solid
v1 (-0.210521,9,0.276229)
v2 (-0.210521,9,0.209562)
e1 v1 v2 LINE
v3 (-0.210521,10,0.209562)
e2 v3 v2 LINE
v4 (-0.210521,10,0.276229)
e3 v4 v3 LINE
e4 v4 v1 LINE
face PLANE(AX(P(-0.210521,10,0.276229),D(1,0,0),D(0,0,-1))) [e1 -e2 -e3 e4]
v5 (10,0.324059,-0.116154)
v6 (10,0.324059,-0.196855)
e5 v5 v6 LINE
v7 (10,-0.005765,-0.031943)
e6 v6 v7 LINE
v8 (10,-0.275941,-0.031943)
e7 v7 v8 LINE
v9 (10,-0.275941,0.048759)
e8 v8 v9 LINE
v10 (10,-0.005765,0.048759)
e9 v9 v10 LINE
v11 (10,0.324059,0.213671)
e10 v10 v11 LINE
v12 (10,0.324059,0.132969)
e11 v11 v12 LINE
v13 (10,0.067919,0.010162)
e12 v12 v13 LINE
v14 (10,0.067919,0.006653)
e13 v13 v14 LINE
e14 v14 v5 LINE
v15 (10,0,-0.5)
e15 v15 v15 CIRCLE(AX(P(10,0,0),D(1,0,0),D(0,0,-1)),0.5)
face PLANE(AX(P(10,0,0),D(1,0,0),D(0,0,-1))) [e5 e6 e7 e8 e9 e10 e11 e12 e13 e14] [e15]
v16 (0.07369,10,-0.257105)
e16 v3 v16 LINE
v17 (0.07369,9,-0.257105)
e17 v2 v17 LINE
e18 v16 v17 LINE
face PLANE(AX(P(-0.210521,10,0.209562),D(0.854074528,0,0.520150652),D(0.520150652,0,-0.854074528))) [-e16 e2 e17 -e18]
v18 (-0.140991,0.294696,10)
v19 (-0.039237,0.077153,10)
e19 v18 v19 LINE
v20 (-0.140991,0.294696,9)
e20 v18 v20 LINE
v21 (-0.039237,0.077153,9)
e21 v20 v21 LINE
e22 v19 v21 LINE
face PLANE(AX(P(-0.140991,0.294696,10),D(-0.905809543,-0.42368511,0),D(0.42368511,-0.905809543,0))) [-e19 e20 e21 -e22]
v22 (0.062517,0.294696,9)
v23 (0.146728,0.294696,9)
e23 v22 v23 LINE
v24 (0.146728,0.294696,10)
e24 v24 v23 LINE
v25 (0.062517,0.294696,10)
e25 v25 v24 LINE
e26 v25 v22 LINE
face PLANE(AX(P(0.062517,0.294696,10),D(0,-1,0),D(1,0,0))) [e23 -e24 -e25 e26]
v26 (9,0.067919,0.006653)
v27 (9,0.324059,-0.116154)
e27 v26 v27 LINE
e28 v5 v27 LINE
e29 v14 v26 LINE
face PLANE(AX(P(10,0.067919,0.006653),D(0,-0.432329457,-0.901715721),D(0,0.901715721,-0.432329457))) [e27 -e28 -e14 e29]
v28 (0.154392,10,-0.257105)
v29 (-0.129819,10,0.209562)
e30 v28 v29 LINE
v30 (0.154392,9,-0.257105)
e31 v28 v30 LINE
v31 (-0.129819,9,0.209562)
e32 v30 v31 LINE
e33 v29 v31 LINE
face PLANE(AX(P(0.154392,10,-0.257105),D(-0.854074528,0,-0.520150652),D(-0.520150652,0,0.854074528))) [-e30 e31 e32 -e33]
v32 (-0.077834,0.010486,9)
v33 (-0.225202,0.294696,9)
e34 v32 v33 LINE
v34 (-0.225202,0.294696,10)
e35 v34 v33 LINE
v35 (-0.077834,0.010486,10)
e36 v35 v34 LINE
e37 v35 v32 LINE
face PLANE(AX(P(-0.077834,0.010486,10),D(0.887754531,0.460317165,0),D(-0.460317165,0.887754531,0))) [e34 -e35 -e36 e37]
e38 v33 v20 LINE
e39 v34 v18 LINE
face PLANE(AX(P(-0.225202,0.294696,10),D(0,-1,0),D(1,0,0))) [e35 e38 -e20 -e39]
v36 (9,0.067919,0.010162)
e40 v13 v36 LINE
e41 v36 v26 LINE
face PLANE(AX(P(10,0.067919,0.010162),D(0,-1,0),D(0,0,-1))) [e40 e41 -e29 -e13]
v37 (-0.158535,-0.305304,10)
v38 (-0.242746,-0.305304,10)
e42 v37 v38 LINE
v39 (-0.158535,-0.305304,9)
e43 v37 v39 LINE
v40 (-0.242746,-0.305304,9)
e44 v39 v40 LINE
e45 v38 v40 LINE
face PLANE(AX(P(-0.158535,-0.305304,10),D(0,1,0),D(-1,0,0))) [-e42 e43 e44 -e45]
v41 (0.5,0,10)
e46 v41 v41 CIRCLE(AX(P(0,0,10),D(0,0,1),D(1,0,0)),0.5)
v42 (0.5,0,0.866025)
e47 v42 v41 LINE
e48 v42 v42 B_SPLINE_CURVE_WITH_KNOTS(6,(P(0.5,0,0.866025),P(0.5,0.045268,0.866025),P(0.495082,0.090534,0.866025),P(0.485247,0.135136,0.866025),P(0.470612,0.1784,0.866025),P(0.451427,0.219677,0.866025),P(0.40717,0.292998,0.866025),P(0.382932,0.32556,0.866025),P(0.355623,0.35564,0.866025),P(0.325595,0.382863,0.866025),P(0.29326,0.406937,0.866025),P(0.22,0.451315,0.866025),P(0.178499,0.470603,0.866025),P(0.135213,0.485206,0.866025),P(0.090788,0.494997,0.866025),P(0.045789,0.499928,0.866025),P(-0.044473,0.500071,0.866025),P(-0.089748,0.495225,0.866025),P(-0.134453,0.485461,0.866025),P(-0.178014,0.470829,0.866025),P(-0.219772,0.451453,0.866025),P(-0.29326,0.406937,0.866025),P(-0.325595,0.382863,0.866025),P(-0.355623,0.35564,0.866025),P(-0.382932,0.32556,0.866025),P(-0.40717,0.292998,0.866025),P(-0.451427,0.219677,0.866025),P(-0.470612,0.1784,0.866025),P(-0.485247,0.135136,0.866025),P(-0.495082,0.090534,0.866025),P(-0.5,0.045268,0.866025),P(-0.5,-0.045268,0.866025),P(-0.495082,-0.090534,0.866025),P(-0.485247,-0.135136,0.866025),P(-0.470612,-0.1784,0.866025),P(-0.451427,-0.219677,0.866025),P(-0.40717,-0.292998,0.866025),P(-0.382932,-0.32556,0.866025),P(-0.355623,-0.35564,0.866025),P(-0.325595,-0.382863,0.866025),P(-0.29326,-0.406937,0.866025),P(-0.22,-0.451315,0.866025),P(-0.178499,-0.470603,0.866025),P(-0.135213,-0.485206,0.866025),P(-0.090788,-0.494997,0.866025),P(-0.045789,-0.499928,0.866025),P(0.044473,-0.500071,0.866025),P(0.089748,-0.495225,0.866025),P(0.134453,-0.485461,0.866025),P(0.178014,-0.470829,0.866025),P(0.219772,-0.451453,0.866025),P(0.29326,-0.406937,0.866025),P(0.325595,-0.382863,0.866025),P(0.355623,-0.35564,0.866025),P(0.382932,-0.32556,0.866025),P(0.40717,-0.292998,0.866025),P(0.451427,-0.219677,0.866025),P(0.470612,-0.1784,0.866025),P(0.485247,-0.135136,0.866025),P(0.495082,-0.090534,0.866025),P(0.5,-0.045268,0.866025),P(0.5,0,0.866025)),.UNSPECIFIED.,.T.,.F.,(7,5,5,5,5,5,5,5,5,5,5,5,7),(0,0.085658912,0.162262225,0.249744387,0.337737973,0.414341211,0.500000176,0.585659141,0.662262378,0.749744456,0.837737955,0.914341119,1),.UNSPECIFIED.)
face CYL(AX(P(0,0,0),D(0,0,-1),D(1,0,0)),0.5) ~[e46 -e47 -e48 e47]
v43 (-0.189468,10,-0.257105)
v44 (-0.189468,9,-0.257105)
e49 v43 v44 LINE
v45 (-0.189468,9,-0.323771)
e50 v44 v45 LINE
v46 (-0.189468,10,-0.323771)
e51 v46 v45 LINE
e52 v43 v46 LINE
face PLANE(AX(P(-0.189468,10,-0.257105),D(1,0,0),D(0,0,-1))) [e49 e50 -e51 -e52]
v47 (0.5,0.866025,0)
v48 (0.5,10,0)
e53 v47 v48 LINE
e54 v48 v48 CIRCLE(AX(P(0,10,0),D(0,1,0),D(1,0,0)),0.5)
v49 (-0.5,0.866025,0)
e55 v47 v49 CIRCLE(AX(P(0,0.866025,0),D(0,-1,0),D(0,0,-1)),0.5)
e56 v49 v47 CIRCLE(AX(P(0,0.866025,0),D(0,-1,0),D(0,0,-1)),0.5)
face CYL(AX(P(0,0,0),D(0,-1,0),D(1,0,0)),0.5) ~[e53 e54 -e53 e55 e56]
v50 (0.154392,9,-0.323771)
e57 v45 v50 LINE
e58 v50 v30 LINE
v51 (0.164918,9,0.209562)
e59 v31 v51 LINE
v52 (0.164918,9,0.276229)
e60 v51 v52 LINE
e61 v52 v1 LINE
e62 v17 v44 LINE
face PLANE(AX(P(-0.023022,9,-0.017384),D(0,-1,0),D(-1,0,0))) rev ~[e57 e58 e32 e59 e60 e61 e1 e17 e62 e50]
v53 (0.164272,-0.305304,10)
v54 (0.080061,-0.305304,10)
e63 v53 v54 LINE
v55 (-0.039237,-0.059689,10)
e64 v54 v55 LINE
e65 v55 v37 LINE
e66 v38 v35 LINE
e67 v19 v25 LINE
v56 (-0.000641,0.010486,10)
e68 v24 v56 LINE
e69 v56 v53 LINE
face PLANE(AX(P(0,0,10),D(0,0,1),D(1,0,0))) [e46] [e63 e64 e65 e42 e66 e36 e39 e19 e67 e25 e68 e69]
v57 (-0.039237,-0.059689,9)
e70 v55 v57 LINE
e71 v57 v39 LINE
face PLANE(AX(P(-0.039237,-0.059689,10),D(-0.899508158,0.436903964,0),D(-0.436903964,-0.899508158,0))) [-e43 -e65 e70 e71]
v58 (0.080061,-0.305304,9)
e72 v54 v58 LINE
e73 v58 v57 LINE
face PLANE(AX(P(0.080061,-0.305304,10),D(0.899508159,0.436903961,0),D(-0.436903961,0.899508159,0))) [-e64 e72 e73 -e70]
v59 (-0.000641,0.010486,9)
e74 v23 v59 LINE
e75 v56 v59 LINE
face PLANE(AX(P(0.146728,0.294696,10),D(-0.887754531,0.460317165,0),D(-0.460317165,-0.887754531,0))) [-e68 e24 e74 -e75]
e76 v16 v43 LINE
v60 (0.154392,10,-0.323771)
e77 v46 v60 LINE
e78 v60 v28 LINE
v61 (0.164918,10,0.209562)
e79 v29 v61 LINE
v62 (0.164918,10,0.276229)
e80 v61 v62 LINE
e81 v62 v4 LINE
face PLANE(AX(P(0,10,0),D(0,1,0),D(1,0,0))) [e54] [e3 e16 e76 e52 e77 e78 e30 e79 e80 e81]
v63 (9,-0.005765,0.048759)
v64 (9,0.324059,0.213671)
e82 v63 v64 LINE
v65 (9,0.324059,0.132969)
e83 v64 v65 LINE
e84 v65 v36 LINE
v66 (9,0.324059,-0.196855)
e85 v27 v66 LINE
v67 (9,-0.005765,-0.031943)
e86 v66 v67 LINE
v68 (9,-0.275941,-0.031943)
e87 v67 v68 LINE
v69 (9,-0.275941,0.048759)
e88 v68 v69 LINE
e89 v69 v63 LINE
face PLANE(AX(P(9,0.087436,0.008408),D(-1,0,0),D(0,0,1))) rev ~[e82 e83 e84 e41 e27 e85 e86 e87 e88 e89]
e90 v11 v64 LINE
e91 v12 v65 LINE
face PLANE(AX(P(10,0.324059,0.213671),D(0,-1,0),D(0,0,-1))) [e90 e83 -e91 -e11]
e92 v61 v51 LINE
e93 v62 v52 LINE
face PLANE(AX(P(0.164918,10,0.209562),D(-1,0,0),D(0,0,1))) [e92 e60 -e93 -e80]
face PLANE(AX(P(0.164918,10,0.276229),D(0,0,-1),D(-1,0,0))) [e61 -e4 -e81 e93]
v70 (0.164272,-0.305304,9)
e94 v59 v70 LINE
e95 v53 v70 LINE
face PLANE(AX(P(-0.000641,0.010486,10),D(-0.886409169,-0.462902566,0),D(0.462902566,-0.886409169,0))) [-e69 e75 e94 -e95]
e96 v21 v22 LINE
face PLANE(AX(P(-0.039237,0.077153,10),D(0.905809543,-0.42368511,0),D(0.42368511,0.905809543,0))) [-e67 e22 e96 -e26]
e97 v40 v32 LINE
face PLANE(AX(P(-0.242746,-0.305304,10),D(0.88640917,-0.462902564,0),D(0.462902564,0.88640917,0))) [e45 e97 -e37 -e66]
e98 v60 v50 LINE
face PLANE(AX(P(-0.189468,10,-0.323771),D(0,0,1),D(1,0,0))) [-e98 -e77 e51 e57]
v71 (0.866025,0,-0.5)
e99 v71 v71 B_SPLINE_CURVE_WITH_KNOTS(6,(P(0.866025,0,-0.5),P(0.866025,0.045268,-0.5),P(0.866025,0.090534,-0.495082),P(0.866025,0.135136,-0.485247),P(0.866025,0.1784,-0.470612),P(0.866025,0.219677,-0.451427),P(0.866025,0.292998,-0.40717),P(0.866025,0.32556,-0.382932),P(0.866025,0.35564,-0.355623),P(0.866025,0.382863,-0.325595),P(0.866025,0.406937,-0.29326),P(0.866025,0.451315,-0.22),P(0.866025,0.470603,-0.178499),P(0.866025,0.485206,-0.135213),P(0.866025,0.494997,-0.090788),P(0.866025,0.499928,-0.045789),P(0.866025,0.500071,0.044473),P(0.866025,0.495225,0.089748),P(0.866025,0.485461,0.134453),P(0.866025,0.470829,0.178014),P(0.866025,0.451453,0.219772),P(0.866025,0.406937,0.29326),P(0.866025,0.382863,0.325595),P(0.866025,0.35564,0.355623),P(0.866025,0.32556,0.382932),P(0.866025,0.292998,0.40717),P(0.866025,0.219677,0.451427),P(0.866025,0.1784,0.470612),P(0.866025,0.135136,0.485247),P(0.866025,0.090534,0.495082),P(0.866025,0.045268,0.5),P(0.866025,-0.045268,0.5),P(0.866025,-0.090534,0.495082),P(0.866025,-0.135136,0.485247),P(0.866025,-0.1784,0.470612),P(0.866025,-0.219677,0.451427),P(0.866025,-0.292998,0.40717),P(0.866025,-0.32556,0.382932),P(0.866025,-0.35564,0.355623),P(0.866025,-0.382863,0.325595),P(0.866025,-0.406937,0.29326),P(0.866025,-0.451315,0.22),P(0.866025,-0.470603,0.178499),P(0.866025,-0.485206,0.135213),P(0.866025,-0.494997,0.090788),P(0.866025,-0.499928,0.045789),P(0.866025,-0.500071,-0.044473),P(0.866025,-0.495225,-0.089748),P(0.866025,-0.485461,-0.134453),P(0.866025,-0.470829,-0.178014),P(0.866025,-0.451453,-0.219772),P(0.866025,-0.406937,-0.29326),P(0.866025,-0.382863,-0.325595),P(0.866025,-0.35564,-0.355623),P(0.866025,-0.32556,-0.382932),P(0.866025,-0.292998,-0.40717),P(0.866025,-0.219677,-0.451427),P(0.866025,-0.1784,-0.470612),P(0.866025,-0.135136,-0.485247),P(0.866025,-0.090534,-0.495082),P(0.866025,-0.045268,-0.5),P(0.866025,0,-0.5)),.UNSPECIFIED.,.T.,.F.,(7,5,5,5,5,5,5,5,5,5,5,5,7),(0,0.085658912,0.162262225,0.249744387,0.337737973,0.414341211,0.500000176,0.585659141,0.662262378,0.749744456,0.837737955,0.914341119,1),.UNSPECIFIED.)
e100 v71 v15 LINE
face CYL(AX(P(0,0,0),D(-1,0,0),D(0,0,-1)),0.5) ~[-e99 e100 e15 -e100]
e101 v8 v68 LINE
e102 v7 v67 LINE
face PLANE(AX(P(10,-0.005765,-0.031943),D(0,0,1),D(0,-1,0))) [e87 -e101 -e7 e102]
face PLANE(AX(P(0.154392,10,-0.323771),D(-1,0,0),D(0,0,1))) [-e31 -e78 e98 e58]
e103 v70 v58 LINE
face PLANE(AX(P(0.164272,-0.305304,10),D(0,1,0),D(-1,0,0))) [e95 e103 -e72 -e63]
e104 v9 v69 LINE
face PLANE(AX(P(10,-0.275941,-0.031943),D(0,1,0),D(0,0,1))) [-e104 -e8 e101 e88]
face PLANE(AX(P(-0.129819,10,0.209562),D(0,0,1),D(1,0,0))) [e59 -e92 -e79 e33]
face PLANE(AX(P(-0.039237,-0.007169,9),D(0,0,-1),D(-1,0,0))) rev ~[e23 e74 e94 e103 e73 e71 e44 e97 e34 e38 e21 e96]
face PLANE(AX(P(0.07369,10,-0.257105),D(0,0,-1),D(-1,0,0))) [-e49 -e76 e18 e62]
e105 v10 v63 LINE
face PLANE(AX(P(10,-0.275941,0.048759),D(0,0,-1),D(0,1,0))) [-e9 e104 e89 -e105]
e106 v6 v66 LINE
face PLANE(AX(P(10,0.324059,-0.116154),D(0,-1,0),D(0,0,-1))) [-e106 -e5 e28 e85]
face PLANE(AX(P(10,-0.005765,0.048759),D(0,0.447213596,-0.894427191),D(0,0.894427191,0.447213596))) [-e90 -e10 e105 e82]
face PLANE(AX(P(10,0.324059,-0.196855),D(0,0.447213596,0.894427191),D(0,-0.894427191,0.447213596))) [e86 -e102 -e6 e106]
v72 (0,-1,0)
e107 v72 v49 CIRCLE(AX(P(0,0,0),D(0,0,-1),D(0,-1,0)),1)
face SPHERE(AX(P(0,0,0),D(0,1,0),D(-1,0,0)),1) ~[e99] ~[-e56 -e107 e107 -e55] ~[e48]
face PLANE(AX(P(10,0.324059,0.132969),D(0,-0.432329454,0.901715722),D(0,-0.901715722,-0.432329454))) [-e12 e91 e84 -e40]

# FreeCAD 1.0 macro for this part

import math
import FreeCAD as App
import Part
import Sketcher
from FreeCAD import Vector
Q = App.Units.Quantity

doc = App.newDocument("Part")
body = doc.addObject("PartDesign::Body", "Body")

# Sketch on XY plane
sketch1 = doc.addObject("Sketcher::SketchObject", "Sketch")
body.addObject(sketch1)
sketch1.AttachmentSupport = (doc.XY_Plane, [""])
sketch1.MapMode = "FlatFace"
sketch1.addGeometry([
    Part.LineSegment(Vector(0, -1, 0), Vector(0, 1, 0)),
    Part.ArcOfCircle(Part.Circle(Vector(0, 0, 0), Vector(0, 0, 1), 1), math.radians(90), math.radians(270)),
], False)
sketch1.addConstraint([
    Sketcher.Constraint("Coincident", 0, 1, 1, 2),
    Sketcher.Constraint("Coincident", 1, 1, 0, 2),
    Sketcher.Constraint("Vertical", 0),
    Sketcher.Constraint("Coincident", 1, 3, -1, 1),
    Sketcher.Constraint("PointOnObject", 0, 1, -2),
    Sketcher.Constraint("Radius", 1, Q("1 mm")),
])
revolution = doc.addObject("PartDesign::Revolution", "Revolution")
body.addObject(revolution)
revolution.Profile = sketch1
revolution.ReferenceAxis = (sketch1, ["V_Axis"])
revolution.Angle = 360

# Sketch on XZ plane
sketch2 = doc.addObject("Sketcher::SketchObject", "Sketch001")
body.addObject(sketch2)
sketch2.AttachmentSupport = (doc.XZ_Plane, [""])
sketch2.MapMode = "FlatFace"
sketch2.addGeometry(Part.Circle(Vector(0, 0, 0), Vector(0, 0, 1), 0.5), False)
sketch2.addConstraint([
    Sketcher.Constraint("Coincident", 0, 3, -1, 1),
    Sketcher.Constraint("Diameter", 0, Q("1 mm")),
])
pad1 = doc.addObject("PartDesign::Pad", "Pad")
body.addObject(pad1)
pad1.Profile = sketch2
pad1.Length = 10
pad1.Reversed = True

# Sketch on YZ plane
sketch3 = doc.addObject("Sketcher::SketchObject", "Sketch002")
body.addObject(sketch3)
sketch3.AttachmentSupport = (doc.YZ_Plane, [""])
sketch3.MapMode = "FlatFace"
sketch3.addGeometry(Part.Circle(Vector(0, 0, 0), Vector(0, 0, 1), 0.5), False)
sketch3.addConstraint([
    Sketcher.Constraint("Coincident", 0, 3, -1, 1),
    Sketcher.Constraint("Diameter", 0, Q("1 mm")),
])
pad2 = doc.addObject("PartDesign::Pad", "Pad001")
body.addObject(pad2)
pad2.Profile = sketch3
pad2.Length = 10

# Sketch on XY plane
sketch4 = doc.addObject("Sketcher::SketchObject", "Sketch003")
body.addObject(sketch4)
sketch4.AttachmentSupport = (doc.XY_Plane, [""])
sketch4.MapMode = "FlatFace"
sketch4.addGeometry(Part.Circle(Vector(0, 0, 0), Vector(0, 0, 1), 0.5), False)
sketch4.addConstraint([
    Sketcher.Constraint("Coincident", 0, 3, -1, 1),
    Sketcher.Constraint("Diameter", 0, Q("1 mm")),
])
pad3 = doc.addObject("PartDesign::Pad", "Pad002")
body.addObject(pad3)
pad3.Profile = sketch4
pad3.Length = 10

# Sketch on XY plane
sketch5 = doc.addObject("Sketcher::SketchObject", "Sketch004")
body.addObject(sketch5)
sketch5.AttachmentSupport = (doc.XY_Plane, [""])
sketch5.MapMode = "FlatFace"
sketch5.AttachmentOffset = App.Placement(Vector(0, 0, 10), App.Rotation())
sketch5.addGeometry([
    Part.LineSegment(Vector(0.08, -0.31, 0), Vector(0.16, -0.31, 0)),  # 0
    Part.LineSegment(Vector(0.16, -0.31, 0), Vector(0, 0.01, 0)),  # 1
    Part.LineSegment(Vector(0, 0.01, 0), Vector(0.15, 0.29, 0)),  # 2
    Part.LineSegment(Vector(0.15, 0.29, 0), Vector(0.06, 0.29, 0)),  # 3
    Part.LineSegment(Vector(0.06, 0.29, 0), Vector(-0.04, 0.08, 0)),  # 4
    Part.LineSegment(Vector(-0.04, 0.08, 0), Vector(-0.14, 0.29, 0)),  # 5
    Part.LineSegment(Vector(-0.14, 0.29, 0), Vector(-0.23, 0.29, 0)),  # 6
    Part.LineSegment(Vector(-0.23, 0.29, 0), Vector(-0.08, 0.01, 0)),  # 7
    Part.LineSegment(Vector(-0.08, 0.01, 0), Vector(-0.24, -0.31, 0)),  # 8
    Part.LineSegment(Vector(-0.24, -0.31, 0), Vector(-0.16, -0.31, 0)),  # 9
    Part.LineSegment(Vector(-0.16, -0.31, 0), Vector(-0.04, -0.06, 0)),  # 10
    Part.LineSegment(Vector(-0.04, -0.06, 0), Vector(0.08, -0.31, 0)),  # 11
], False)
sketch5.addConstraint([
    Sketcher.Constraint("Coincident", 0, 2, 1, 1),
    Sketcher.Constraint("Coincident", 1, 2, 2, 1),
    Sketcher.Constraint("Coincident", 2, 2, 3, 1),
    Sketcher.Constraint("Coincident", 3, 2, 4, 1),
    Sketcher.Constraint("Coincident", 4, 2, 5, 1),
    Sketcher.Constraint("Coincident", 5, 2, 6, 1),
    Sketcher.Constraint("Coincident", 6, 2, 7, 1),
    Sketcher.Constraint("Coincident", 7, 2, 8, 1),
    Sketcher.Constraint("Coincident", 8, 2, 9, 1),
    Sketcher.Constraint("Coincident", 9, 2, 10, 1),
    Sketcher.Constraint("Coincident", 10, 2, 11, 1),
    Sketcher.Constraint("Coincident", 11, 2, 0, 1),
    Sketcher.Constraint("Horizontal", 0),
    Sketcher.Constraint("Horizontal", 3),
    Sketcher.Constraint("Horizontal", 6),
    Sketcher.Constraint("Horizontal", 9),
    Sketcher.Constraint("Horizontal", 3, 2, 5, 2),
    Sketcher.Constraint("Horizontal", 1, 2, 7, 2),
    Sketcher.Constraint("Horizontal", 0, 2, 8, 2),
    Sketcher.Constraint("Vertical", 4, 2, 10, 2),
    Sketcher.Constraint("Equal", 0, 3),
    Sketcher.Constraint("Equal", 3, 6),
    Sketcher.Constraint("Equal", 6, 9),
    Sketcher.Constraint("Equal", 4, 5),
    Sketcher.Constraint("Equal", 2, 7),
    Sketcher.Constraint("Equal", 1, 8),
    Sketcher.Constraint("DistanceY", 0, 2, 2, 2, Q("0.6 mm")),
    Sketcher.Constraint("DistanceX", 0, 1, 0, 2, Q("0.084211 mm")),
    Sketcher.Constraint("DistanceX", 9, 2, 7, 2, Q("0.080702 mm")),
    Sketcher.Constraint("DistanceX", 9, 2, 4, 2, Q("0.119298 mm")),
    Sketcher.Constraint("DistanceX", -1, 1, 0, 2, Q("0.164272 mm")),
    Sketcher.Constraint("DistanceX", 5, 2, -1, 1, Q("0.140991 mm")),
    Sketcher.Constraint("DistanceY", 10, 2, -1, 1, Q("0.059689 mm")),
    Sketcher.Constraint("DistanceY", 0, 2, 1, 2, Q("0.315789 mm")),
    Sketcher.Constraint("Distance", 4, Q("0.240165 mm")),
    Sketcher.Constraint("Distance", 10, Q("0.273054 mm")),
])
pocket1 = doc.addObject("PartDesign::Pocket", "Pocket")
body.addObject(pocket1)
pocket1.Profile = sketch5
pocket1.Length = 1

# Sketch on YZ plane
sketch6 = doc.addObject("Sketcher::SketchObject", "Sketch005")
body.addObject(sketch6)
sketch6.AttachmentSupport = (doc.YZ_Plane, [""])
sketch6.MapMode = "FlatFace"
sketch6.AttachmentOffset = App.Placement(Vector(0, 0, 10), App.Rotation())
sketch6.addGeometry([
    Part.LineSegment(Vector(-0.0058, -0.0319, 0), Vector(0.3241, -0.1969, 0)),  # 0
    Part.LineSegment(Vector(0.3241, -0.1969, 0), Vector(0.3241, -0.1162, 0)),  # 1
    Part.LineSegment(Vector(0.3241, -0.1162, 0), Vector(0.0679, 0.0067, 0)),  # 2
    Part.LineSegment(Vector(0.0679, 0.0067, 0), Vector(0.0679, 0.0102, 0)),  # 3
    Part.LineSegment(Vector(0.0679, 0.0102, 0), Vector(0.3241, 0.133, 0)),  # 4
    Part.LineSegment(Vector(0.3241, 0.133, 0), Vector(0.3241, 0.2137, 0)),  # 5
    Part.LineSegment(Vector(0.3241, 0.2137, 0), Vector(-0.0058, 0.0488, 0)),  # 6
    Part.LineSegment(Vector(-0.0058, 0.0488, 0), Vector(-0.2759, 0.0488, 0)),  # 7
    Part.LineSegment(Vector(-0.2759, 0.0488, 0), Vector(-0.2759, -0.0319, 0)),  # 8
    Part.LineSegment(Vector(-0.2759, -0.0319, 0), Vector(-0.0058, -0.0319, 0)),  # 9
], False)
sketch6.addConstraint([
    Sketcher.Constraint("Coincident", 0, 2, 1, 1),
    Sketcher.Constraint("Coincident", 1, 2, 2, 1),
    Sketcher.Constraint("Coincident", 2, 2, 3, 1),
    Sketcher.Constraint("Coincident", 3, 2, 4, 1),
    Sketcher.Constraint("Coincident", 4, 2, 5, 1),
    Sketcher.Constraint("Coincident", 5, 2, 6, 1),
    Sketcher.Constraint("Coincident", 6, 2, 7, 1),
    Sketcher.Constraint("Coincident", 7, 2, 8, 1),
    Sketcher.Constraint("Coincident", 8, 2, 9, 1),
    Sketcher.Constraint("Coincident", 9, 2, 0, 1),
    Sketcher.Constraint("Vertical", 1),
    Sketcher.Constraint("Vertical", 3),
    Sketcher.Constraint("Vertical", 5),
    Sketcher.Constraint("Horizontal", 7),
    Sketcher.Constraint("Vertical", 8),
    Sketcher.Constraint("Horizontal", 9),
    Sketcher.Constraint("Vertical", 1, 2, 4, 2),
    Sketcher.Constraint("Vertical", 6, 2, 9, 2),
    Sketcher.Constraint("Equal", 1, 5),
    Sketcher.Constraint("Equal", 5, 8),
    Sketcher.Constraint("Equal", 2, 4),
    Sketcher.Constraint("Equal", 0, 6),
    Sketcher.Constraint("DistanceX", 7, 2, 4, 2, Q("0.6 mm")),
    Sketcher.Constraint("DistanceY", 1, 1, 1, 2, Q("0.080702 mm")),
    Sketcher.Constraint("DistanceY", 3, 1, 3, 2, Q("0.003509 mm")),
    Sketcher.Constraint("Distance", 2, Q("0.284059 mm")),
    Sketcher.Constraint("DistanceX", 7, 2, 7, 1, Q("0.270175 mm")),
    Sketcher.Constraint("DistanceX", -1, 1, 0, 2, Q("0.324059 mm")),
    Sketcher.Constraint("DistanceX", -1, 1, 2, 2, Q("0.067919 mm")),
    Sketcher.Constraint("DistanceY", -1, 1, 4, 2, Q("0.132969 mm")),
])
pocket2 = doc.addObject("PartDesign::Pocket", "Pocket001")
body.addObject(pocket2)
pocket2.Profile = sketch6
pocket2.Length = 1

# Sketch on XZ plane
sketch7 = doc.addObject("Sketcher::SketchObject", "Sketch006")
body.addObject(sketch7)
sketch7.AttachmentSupport = (doc.XZ_Plane, [""])
sketch7.MapMode = "FlatFace"
sketch7.AttachmentOffset = App.Placement(Vector(0, 0, -10), App.Rotation())
sketch7.addGeometry([
    Part.LineSegment(Vector(-0.21, 0.28, 0), Vector(0.16, 0.28, 0)),  # 0
    Part.LineSegment(Vector(0.16, 0.28, 0), Vector(0.16, 0.21, 0)),  # 1
    Part.LineSegment(Vector(0.16, 0.21, 0), Vector(-0.13, 0.21, 0)),  # 2
    Part.LineSegment(Vector(-0.13, 0.21, 0), Vector(0.15, -0.26, 0)),  # 3
    Part.LineSegment(Vector(0.15, -0.26, 0), Vector(0.15, -0.32, 0)),  # 4
    Part.LineSegment(Vector(0.15, -0.32, 0), Vector(-0.19, -0.32, 0)),  # 5
    Part.LineSegment(Vector(-0.19, -0.32, 0), Vector(-0.19, -0.26, 0)),  # 6
    Part.LineSegment(Vector(-0.19, -0.26, 0), Vector(0.07, -0.26, 0)),  # 7
    Part.LineSegment(Vector(0.07, -0.26, 0), Vector(-0.21, 0.21, 0)),  # 8
    Part.LineSegment(Vector(-0.21, 0.21, 0), Vector(-0.21, 0.28, 0)),  # 9
], False)
sketch7.addConstraint([
    Sketcher.Constraint("Coincident", 0, 2, 1, 1),
    Sketcher.Constraint("Coincident", 1, 2, 2, 1),
    Sketcher.Constraint("Coincident", 2, 2, 3, 1),
    Sketcher.Constraint("Coincident", 3, 2, 4, 1),
    Sketcher.Constraint("Coincident", 4, 2, 5, 1),
    Sketcher.Constraint("Coincident", 5, 2, 6, 1),
    Sketcher.Constraint("Coincident", 6, 2, 7, 1),
    Sketcher.Constraint("Coincident", 7, 2, 8, 1),
    Sketcher.Constraint("Coincident", 8, 2, 9, 1),
    Sketcher.Constraint("Coincident", 9, 2, 0, 1),
    Sketcher.Constraint("Horizontal", 0),
    Sketcher.Constraint("Vertical", 1),
    Sketcher.Constraint("Horizontal", 2),
    Sketcher.Constraint("Vertical", 4),
    Sketcher.Constraint("Horizontal", 5),
    Sketcher.Constraint("Vertical", 6),
    Sketcher.Constraint("Horizontal", 7),
    Sketcher.Constraint("Vertical", 9),
    Sketcher.Constraint("Parallel", 3, 8),
    Sketcher.Constraint("Horizontal", 3, 2, 6, 2),
    Sketcher.Constraint("Horizontal", 2, 2, 8, 2),
    Sketcher.Constraint("Equal", 1, 4),
    Sketcher.Constraint("DistanceY", 4, 2, 0, 2, Q("0.6 mm")),
    Sketcher.Constraint("Distance", 3, Q("0.5464 mm")),
    Sketcher.Constraint("DistanceX", 0, 1, 0, 2, Q("0.375439 mm")),
    Sketcher.Constraint("DistanceX", 5, 2, 5, 1, Q("0.34386 mm")),
    Sketcher.Constraint("DistanceX", 7, 2, 3, 2, Q("0.080702 mm")),
    Sketcher.Constraint("DistanceY", 1, 2, 1, 1, Q("0.066667 mm")),
    Sketcher.Constraint("DistanceY", -1, 1, 0, 2, Q("0.276229 mm")),
    Sketcher.Constraint("DistanceX", 2, 2, -1, 1, Q("0.129819 mm")),
])
pocket3 = doc.addObject("PartDesign::Pocket", "Pocket002")
body.addObject(pocket3)
pocket3.Profile = sketch7
pocket3.Length = 1
pocket3.Reversed = True

doc.recompute()
